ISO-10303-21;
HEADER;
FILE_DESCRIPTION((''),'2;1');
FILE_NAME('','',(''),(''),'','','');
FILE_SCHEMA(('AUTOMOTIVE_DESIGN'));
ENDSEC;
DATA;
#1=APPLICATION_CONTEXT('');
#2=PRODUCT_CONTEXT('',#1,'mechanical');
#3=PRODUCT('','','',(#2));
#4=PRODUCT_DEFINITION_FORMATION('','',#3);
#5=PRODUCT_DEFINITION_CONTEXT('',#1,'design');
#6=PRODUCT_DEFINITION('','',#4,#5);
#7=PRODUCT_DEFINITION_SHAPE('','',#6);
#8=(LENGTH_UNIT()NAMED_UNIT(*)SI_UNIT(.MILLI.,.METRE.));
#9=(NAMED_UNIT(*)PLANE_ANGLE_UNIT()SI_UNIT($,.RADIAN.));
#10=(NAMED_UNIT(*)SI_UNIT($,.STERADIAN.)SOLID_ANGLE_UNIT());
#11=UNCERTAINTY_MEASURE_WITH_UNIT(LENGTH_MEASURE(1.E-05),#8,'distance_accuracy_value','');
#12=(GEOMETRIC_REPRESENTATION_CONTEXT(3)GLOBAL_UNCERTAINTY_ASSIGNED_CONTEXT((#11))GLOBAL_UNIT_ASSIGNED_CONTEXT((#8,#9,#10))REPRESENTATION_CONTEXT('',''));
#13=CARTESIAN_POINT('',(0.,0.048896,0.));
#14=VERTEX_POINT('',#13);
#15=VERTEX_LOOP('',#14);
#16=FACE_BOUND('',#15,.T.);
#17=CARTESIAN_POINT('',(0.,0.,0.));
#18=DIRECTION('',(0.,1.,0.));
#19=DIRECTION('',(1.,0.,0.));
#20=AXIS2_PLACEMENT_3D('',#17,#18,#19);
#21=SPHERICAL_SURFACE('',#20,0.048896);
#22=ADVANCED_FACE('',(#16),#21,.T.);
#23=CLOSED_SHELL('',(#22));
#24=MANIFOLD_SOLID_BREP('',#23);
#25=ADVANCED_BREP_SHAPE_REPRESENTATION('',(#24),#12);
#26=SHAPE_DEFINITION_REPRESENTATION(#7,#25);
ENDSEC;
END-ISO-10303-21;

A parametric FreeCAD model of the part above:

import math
import FreeCAD as App
import Part
import Sketcher

V = App.Vector

doc = App.newDocument("Part")
params = doc.addObject("Spreadsheet::Sheet", "Params")
for row, (alias, value) in enumerate([
    ("revolution_angle", "360 deg"),
], start=1):
    params.set(f"A{row}", alias)
    params.set(f"B{row}", "=" + value)
    params.setAlias(f"B{row}", alias)

body = doc.addObject("PartDesign::Body", "Body")

# Sketch on XY plane
sketch1 = doc.addObject("Sketcher::SketchObject", "Sketch")
body.addObject(sketch1)
sketch1.AttachmentSupport = (doc.XY_Plane, [""])
sketch1.MapMode = "FlatFace"
sketch1.addGeometry(Part.LineSegment(V(0, 0.048896, 0), V(0, -0.048896, 0)), False)
sketch1.addGeometry(Part.ArcOfCircle(Part.Circle(V(0, 0, 0), V(0, 0, 1), 0.048896), math.radians(-90), math.radians(90)), False)
sketch1.addConstraint(Sketcher.Constraint("Coincident", 0, 1, 1, 2))
sketch1.addConstraint(Sketcher.Constraint("Coincident", 1, 1, 0, 2))
sketch1.addConstraint(Sketcher.Constraint("Vertical", 0))
sketch1.addConstraint(Sketcher.Constraint("Coincident", 1, 3, -1, 1))
sketch1.addConstraint(Sketcher.Constraint("PointOnObject", 0, 1, -2))
sketch1.addConstraint(Sketcher.Constraint("Radius", 1, 0.048896))
revolution = doc.addObject("PartDesign::Revolution", "Revolution")
body.addObject(revolution)
revolution.Profile = sketch1
revolution.ReferenceAxis = (sketch1, ["V_Axis"])
revolution.setExpression("Angle", "Params.revolution_angle")

doc.recompute()
